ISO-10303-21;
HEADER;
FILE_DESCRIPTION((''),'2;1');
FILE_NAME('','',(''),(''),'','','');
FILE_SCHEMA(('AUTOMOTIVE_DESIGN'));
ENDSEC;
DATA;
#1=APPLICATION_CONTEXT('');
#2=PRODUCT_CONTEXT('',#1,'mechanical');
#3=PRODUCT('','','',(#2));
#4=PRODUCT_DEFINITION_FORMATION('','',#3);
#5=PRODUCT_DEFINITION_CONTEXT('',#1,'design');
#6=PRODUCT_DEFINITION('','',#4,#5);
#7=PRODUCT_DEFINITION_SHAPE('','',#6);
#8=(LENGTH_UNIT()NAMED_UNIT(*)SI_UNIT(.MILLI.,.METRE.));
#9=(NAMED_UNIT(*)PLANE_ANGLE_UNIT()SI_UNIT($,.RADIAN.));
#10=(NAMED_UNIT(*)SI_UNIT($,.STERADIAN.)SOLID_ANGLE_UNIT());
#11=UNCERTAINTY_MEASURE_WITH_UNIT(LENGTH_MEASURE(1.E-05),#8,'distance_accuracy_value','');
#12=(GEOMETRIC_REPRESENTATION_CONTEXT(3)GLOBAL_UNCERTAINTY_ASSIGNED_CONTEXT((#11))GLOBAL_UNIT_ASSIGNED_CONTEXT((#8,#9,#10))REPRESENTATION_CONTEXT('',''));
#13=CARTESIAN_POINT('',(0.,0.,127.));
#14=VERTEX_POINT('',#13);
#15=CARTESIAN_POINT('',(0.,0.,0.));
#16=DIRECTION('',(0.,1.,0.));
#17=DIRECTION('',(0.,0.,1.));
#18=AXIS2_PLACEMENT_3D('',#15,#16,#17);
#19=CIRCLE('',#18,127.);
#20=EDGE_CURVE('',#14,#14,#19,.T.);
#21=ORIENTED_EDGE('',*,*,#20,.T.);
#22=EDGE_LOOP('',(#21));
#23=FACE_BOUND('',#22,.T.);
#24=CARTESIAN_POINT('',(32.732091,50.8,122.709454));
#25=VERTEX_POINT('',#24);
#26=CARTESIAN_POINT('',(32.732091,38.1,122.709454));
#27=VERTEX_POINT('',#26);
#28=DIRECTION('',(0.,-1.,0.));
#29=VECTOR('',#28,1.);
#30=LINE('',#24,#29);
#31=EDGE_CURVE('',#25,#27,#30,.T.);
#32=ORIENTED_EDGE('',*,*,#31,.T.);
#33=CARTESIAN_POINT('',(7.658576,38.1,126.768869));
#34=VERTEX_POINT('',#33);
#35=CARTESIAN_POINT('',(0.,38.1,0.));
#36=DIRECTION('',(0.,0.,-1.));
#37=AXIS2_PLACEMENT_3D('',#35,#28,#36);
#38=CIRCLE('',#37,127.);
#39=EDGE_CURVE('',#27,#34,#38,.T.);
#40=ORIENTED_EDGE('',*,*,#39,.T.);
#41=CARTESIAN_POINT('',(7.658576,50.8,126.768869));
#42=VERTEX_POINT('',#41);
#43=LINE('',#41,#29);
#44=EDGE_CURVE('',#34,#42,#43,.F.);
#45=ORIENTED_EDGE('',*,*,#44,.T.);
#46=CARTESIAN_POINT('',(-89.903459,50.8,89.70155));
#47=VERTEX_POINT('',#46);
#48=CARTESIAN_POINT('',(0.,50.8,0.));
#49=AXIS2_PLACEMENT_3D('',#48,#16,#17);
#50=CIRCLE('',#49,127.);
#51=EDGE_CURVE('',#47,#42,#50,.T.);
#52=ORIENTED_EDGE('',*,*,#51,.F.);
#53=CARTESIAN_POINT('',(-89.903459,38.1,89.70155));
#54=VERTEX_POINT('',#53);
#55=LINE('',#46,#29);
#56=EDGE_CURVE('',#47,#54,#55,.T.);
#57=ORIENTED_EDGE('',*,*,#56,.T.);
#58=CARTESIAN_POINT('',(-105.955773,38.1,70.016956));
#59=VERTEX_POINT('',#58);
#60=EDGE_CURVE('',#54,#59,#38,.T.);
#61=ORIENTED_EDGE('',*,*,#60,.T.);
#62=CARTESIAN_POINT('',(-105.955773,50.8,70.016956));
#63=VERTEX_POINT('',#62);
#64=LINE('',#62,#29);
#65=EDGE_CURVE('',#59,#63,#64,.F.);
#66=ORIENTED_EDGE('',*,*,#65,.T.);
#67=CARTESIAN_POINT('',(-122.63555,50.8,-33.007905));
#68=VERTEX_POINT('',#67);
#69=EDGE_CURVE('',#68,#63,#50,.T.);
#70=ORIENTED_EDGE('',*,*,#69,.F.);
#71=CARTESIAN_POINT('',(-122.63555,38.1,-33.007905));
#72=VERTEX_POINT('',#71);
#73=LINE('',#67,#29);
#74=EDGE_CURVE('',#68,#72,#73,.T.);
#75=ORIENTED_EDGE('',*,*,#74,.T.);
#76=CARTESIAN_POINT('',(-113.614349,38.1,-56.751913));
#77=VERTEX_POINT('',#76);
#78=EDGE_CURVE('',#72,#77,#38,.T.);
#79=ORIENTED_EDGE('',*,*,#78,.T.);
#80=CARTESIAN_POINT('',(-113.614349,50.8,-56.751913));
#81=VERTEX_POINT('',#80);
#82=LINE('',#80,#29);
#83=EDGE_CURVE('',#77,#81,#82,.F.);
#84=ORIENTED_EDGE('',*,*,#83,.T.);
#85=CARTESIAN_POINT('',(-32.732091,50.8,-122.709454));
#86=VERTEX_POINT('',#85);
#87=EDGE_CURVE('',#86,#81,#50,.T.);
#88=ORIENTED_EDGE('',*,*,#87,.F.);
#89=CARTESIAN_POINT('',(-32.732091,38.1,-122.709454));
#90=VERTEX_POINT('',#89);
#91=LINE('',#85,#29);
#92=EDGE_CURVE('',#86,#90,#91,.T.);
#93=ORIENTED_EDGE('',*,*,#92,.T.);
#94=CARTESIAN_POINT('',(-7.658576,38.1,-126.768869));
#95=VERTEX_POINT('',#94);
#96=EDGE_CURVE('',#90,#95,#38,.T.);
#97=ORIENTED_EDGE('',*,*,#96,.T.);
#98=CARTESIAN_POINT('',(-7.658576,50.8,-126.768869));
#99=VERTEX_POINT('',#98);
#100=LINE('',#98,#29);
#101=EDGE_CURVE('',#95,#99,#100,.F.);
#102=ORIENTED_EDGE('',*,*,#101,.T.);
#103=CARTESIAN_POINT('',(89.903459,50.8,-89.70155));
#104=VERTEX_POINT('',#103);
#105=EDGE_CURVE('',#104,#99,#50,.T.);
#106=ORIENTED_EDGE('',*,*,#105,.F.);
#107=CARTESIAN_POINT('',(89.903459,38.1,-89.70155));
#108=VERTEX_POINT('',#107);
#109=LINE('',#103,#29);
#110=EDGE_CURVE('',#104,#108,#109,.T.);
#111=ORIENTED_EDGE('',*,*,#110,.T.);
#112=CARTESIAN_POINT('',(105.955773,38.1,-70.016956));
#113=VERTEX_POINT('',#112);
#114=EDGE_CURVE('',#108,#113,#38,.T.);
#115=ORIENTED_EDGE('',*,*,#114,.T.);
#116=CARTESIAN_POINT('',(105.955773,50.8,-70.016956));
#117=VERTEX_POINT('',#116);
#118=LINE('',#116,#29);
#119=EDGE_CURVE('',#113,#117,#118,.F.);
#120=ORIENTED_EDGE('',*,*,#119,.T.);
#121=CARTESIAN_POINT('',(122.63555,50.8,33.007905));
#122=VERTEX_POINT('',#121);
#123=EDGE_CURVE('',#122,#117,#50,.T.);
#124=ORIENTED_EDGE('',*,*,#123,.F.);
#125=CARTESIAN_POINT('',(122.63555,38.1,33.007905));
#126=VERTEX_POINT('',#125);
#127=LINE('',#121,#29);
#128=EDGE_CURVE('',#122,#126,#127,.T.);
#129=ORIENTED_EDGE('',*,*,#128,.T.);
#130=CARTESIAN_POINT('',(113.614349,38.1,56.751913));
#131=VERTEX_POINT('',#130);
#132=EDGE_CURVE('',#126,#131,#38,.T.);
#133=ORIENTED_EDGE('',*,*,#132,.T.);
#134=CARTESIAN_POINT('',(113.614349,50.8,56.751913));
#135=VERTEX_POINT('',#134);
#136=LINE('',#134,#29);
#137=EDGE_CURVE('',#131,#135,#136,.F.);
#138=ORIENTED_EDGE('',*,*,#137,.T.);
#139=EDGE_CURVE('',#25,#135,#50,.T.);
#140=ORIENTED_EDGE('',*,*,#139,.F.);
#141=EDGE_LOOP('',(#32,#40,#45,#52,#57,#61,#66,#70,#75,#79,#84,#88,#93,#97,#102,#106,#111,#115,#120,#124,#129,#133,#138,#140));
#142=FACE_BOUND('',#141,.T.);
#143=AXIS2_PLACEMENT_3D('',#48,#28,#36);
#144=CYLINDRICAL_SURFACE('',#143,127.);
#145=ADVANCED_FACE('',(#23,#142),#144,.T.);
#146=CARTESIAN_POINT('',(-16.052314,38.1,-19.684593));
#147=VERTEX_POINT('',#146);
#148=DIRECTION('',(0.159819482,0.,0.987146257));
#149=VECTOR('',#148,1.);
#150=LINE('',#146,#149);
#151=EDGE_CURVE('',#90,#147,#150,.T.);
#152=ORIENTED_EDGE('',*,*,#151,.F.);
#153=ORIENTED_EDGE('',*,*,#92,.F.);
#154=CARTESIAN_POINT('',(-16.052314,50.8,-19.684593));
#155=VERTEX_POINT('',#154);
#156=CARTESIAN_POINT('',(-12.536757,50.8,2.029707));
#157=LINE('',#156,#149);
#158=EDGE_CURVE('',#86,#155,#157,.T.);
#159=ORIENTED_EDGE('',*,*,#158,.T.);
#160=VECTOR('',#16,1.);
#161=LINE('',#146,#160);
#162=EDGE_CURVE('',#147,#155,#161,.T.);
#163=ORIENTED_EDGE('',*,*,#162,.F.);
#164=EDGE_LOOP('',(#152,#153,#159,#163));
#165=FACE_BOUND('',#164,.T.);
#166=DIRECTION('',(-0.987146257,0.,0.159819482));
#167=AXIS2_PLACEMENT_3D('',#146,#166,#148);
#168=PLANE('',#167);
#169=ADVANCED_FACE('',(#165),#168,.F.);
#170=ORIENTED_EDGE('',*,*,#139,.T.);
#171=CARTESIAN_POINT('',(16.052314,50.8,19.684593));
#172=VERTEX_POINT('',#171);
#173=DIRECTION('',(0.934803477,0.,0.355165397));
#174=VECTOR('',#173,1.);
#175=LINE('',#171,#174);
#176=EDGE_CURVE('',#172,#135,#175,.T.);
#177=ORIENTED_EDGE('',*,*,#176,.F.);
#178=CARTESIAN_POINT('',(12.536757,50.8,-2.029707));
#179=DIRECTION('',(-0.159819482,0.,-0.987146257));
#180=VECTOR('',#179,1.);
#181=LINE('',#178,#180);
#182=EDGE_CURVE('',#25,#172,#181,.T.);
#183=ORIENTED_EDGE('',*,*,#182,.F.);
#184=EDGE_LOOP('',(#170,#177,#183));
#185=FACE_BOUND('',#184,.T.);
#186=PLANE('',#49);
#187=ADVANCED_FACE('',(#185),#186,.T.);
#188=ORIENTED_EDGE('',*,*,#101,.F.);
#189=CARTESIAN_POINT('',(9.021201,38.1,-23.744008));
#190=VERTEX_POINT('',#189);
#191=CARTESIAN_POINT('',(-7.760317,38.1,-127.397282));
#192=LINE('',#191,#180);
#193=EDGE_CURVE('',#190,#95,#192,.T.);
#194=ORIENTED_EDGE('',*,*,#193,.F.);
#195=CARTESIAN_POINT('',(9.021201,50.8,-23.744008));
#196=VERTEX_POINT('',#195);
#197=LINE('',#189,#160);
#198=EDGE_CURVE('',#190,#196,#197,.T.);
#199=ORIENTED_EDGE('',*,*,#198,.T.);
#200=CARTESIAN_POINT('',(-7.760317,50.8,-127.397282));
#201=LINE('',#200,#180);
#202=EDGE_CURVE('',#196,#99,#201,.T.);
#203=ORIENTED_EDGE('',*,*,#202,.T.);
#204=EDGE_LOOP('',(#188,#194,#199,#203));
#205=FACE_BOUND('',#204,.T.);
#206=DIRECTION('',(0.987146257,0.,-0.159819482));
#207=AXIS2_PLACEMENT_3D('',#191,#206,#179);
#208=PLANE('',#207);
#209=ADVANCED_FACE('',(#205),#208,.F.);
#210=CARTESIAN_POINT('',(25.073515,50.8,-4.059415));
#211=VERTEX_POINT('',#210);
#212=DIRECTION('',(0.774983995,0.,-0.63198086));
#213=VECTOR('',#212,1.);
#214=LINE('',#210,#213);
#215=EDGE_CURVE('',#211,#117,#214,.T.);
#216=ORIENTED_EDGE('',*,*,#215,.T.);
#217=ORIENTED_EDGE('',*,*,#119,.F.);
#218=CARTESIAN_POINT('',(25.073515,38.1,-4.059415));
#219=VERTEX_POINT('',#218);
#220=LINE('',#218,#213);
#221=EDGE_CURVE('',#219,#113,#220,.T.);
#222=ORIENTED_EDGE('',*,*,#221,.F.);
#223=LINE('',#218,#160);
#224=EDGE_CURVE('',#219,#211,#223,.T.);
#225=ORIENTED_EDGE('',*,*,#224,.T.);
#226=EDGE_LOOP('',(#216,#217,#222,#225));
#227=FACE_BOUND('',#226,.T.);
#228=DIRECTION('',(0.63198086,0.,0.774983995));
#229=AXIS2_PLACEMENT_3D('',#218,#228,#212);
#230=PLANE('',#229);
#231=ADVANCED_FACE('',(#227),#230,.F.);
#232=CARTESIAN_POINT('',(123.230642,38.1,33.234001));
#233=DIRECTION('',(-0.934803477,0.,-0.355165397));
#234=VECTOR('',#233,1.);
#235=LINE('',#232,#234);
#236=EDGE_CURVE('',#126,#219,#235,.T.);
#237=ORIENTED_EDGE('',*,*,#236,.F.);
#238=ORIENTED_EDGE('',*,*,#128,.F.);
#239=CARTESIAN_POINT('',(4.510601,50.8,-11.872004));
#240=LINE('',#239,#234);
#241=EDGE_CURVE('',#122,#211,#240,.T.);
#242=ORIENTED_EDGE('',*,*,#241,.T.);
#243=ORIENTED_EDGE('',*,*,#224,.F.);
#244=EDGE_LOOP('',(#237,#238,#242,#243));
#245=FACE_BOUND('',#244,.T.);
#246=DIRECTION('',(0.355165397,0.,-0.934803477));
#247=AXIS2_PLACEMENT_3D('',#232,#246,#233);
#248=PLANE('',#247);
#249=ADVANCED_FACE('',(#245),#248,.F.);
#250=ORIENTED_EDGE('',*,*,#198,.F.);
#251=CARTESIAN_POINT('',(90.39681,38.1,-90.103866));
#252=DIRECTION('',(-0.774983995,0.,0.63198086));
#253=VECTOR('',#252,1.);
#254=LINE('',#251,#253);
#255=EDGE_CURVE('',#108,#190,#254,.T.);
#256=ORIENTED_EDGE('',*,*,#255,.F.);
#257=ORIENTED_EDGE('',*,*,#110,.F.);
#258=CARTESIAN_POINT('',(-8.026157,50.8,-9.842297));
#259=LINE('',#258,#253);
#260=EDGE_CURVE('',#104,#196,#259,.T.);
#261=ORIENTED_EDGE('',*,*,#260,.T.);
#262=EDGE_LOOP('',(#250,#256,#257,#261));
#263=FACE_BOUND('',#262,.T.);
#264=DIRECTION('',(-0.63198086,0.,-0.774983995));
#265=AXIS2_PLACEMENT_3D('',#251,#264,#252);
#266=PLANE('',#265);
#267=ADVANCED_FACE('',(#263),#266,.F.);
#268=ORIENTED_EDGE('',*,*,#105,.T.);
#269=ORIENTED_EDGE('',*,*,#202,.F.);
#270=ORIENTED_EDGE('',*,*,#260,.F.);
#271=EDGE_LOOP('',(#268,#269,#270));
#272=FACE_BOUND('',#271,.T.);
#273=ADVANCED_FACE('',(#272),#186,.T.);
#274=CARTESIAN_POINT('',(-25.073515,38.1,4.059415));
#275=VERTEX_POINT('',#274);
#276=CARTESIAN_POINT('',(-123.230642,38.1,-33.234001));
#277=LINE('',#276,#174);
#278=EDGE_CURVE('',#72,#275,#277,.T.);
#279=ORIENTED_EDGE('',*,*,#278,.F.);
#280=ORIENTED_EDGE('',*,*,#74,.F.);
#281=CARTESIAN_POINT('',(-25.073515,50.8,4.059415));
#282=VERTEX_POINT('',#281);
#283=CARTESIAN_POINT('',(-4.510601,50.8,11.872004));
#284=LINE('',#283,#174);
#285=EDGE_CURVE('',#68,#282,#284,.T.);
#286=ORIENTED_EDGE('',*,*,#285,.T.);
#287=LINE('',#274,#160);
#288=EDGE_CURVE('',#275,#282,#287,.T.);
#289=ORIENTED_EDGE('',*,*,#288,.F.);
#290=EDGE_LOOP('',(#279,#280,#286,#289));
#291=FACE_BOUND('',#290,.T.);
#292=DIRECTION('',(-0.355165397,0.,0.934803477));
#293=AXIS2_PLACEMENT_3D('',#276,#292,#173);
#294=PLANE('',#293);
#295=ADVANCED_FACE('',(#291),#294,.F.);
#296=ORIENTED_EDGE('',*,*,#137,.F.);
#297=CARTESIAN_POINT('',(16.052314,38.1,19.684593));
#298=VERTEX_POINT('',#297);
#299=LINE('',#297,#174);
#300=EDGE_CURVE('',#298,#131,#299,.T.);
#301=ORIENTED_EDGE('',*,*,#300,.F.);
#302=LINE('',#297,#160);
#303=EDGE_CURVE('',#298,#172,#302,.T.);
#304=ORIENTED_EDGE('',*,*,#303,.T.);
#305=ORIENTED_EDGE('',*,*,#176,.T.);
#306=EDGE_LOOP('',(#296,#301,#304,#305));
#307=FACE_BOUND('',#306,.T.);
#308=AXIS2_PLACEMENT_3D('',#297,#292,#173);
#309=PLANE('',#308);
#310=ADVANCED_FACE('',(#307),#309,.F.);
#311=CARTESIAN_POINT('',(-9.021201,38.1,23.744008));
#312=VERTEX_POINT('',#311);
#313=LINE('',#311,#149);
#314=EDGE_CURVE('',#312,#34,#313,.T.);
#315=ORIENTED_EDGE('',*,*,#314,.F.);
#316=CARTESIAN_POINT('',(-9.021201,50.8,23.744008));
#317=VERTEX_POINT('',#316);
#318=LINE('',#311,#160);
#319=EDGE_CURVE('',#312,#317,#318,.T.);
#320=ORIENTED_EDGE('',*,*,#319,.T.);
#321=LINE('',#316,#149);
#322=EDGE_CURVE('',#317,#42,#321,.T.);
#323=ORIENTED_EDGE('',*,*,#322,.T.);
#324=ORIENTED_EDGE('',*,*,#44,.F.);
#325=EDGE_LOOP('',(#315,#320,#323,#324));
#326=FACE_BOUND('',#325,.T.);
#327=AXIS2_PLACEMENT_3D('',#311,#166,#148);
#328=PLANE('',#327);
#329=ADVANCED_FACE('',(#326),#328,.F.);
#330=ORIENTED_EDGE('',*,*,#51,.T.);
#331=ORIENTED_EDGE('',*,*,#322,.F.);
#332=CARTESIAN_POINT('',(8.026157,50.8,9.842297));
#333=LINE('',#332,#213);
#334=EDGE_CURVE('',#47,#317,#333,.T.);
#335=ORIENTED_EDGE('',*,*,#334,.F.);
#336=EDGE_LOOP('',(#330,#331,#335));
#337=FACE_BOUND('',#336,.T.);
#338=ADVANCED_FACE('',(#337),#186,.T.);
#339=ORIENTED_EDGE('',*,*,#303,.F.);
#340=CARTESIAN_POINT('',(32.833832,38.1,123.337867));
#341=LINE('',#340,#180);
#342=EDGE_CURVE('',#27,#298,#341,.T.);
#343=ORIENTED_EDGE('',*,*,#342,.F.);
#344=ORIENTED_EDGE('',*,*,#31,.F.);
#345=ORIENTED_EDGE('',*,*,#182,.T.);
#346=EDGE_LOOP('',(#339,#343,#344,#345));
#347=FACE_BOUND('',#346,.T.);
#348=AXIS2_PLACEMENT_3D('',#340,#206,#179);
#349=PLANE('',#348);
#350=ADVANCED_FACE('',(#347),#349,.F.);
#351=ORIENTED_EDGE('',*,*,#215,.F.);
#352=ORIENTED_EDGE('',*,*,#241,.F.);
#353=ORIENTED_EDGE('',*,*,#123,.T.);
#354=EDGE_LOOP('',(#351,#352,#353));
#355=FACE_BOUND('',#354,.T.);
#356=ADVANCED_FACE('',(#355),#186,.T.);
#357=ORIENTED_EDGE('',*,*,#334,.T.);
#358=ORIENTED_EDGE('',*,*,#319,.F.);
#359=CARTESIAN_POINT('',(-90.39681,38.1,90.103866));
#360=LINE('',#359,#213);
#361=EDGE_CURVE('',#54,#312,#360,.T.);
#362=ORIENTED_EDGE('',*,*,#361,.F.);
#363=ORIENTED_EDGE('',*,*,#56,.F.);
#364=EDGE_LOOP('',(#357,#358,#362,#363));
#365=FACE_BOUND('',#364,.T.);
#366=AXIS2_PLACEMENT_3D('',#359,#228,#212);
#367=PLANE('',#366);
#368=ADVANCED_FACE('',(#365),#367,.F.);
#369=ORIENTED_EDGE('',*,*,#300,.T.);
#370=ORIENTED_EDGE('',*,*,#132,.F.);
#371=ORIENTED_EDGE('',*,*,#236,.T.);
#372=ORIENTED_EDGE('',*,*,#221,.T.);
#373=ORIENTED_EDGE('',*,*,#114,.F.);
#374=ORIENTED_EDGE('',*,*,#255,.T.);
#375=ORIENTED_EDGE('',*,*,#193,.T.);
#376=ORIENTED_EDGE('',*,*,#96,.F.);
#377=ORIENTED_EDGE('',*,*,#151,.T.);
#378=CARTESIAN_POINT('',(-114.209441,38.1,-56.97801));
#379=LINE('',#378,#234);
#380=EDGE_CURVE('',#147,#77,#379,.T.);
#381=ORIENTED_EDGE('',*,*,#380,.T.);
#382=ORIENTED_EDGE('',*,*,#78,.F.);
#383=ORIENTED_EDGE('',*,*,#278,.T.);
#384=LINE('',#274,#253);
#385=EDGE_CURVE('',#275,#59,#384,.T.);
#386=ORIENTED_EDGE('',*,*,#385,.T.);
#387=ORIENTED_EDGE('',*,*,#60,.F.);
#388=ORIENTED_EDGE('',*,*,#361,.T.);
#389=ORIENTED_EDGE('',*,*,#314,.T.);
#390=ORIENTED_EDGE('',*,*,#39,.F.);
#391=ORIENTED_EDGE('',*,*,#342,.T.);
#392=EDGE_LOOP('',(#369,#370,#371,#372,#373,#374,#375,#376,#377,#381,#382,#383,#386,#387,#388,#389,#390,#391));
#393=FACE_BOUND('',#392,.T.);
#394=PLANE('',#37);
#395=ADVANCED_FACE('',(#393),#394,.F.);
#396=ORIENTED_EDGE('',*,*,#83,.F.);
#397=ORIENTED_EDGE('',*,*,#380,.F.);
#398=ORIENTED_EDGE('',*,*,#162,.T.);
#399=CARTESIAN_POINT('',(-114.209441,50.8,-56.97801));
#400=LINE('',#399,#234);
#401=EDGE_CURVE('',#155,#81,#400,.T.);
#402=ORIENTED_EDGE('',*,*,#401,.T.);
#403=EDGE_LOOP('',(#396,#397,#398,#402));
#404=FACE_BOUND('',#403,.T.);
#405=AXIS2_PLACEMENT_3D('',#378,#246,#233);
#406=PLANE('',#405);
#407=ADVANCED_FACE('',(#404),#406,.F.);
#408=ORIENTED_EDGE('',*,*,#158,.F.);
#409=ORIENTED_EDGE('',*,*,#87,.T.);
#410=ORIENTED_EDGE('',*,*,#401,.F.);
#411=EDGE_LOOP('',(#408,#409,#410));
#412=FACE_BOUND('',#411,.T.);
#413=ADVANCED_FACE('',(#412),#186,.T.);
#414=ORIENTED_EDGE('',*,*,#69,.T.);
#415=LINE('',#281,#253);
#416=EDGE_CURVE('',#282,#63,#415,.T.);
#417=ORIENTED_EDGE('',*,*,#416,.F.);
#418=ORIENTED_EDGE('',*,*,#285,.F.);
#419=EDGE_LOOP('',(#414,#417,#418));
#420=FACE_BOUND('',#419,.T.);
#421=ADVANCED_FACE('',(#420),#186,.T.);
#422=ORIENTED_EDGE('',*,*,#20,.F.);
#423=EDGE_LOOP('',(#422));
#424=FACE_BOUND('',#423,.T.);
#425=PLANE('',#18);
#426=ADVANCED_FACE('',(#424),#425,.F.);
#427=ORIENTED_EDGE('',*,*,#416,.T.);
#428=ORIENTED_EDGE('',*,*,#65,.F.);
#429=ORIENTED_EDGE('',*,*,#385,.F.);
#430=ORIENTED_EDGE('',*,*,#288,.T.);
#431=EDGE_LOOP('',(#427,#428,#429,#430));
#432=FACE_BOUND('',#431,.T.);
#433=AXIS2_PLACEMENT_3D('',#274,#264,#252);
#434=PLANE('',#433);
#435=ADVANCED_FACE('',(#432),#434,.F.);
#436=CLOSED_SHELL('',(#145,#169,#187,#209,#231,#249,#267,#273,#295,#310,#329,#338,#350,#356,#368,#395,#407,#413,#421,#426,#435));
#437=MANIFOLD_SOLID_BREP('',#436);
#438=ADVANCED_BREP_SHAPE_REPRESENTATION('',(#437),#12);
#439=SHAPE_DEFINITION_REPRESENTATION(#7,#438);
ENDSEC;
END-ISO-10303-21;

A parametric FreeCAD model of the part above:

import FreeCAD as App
import Part
import Sketcher
from FreeCAD import Vector
Q = App.Units.Quantity

doc = App.newDocument("Part")
params = doc.addObject("Spreadsheet::Sheet", "Params")
for row, (alias, value) in enumerate([
    ("sketch1_diameter", "10 in"),
    ("pad1_length", "2 in"),
    ("sketch2_length", "1 in"),
    ("pocket1_length", "0.5 in"),
], start=1):
    params.set(f"A{row}", alias)
    params.set(f"B{row}", "=" + value)
    params.setAlias(f"B{row}", alias)

body = doc.addObject("PartDesign::Body", "Body")

sketch1 = doc.addObject("Sketcher::SketchObject", "Sketch")
body.addObject(sketch1)
sketch1.AttachmentSupport = (doc.XZ_Plane, [""])
sketch1.MapMode = "FlatFace"
sketch1.addGeometry(Part.Circle(Vector(0, 0, 0), Vector(0, 0, 1), 127), False)
sketch1.addConstraint([
    Sketcher.Constraint("Coincident", 0, 3, -1, 1),
    Sketcher.Constraint("Diameter", 0, Q("10 in")),
])
sketch1.setExpression("Constraints[1]", "Params.sketch1_diameter")
pad1 = doc.addObject("PartDesign::Pad", "Pad")
body.addObject(pad1)
pad1.Profile = sketch1
pad1.setExpression("Length", "Params.pad1_length")
pad1.Reversed = True

sketch2 = doc.addObject("Sketcher::SketchObject", "Sketch001")
body.addObject(sketch2)
sketch2.AttachmentSupport = (doc.XZ_Plane, [""])
sketch2.MapMode = "FlatFace"
sketch2.AttachmentOffset = App.Placement(Vector(0, 0, -2 * 25.4), App.Rotation())
sketch2.addGeometry([
    Part.LineSegment(Vector(-106, 70, 0), Vector(-90, 90, 0)),
    Part.LineSegment(Vector(-90, 90, 0), Vector(-9, 24, 0)),
    Part.LineSegment(Vector(-9, 24, 0), Vector(8, 127, 0)),
    Part.LineSegment(Vector(8, 127, 0), Vector(33, 123, 0)),
    Part.LineSegment(Vector(33, 123, 0), Vector(16, 20, 0)),
    Part.LineSegment(Vector(16, 20, 0), Vector(114, 57, 0)),
    Part.LineSegment(Vector(114, 57, 0), Vector(123, 33, 0)),
    Part.LineSegment(Vector(123, 33, 0), Vector(25, -4, 0)),
    Part.LineSegment(Vector(25, -4, 0), Vector(106, -70, 0)),
    Part.LineSegment(Vector(106, -70, 0), Vector(90, -90, 0)),
    Part.LineSegment(Vector(90, -90, 0), Vector(9, -24, 0)),
    Part.LineSegment(Vector(9, -24, 0), Vector(-8, -127, 0)),
    Part.LineSegment(Vector(-8, -127, 0), Vector(-33, -123, 0)),
    Part.LineSegment(Vector(-33, -123, 0), Vector(-16, -20, 0)),
    Part.LineSegment(Vector(-16, -20, 0), Vector(-114, -57, 0)),
    Part.LineSegment(Vector(-114, -57, 0), Vector(-123, -33, 0)),
    Part.LineSegment(Vector(-123, -33, 0), Vector(-25, 4, 0)),
    Part.LineSegment(Vector(-25, 4, 0), Vector(-106, 70, 0)),
], False)
sketch2.addConstraint([
    Sketcher.Constraint("Coincident", 0, 2, 1, 1),
    Sketcher.Constraint("Coincident", 1, 2, 2, 1),
    Sketcher.Constraint("Coincident", 2, 2, 3, 1),
    Sketcher.Constraint("Coincident", 3, 2, 4, 1),
    Sketcher.Constraint("Coincident", 4, 2, 5, 1),
    Sketcher.Constraint("Coincident", 5, 2, 6, 1),
    Sketcher.Constraint("Coincident", 6, 2, 7, 1),
    Sketcher.Constraint("Coincident", 7, 2, 8, 1),
    Sketcher.Constraint("Coincident", 8, 2, 9, 1),
    Sketcher.Constraint("Coincident", 9, 2, 10, 1),
    Sketcher.Constraint("Coincident", 10, 2, 11, 1),
    Sketcher.Constraint("Coincident", 11, 2, 12, 1),
    Sketcher.Constraint("Coincident", 12, 2, 13, 1),
    Sketcher.Constraint("Coincident", 13, 2, 14, 1),
    Sketcher.Constraint("Coincident", 14, 2, 15, 1),
    Sketcher.Constraint("Coincident", 15, 2, 16, 1),
    Sketcher.Constraint("Coincident", 16, 2, 17, 1),
    Sketcher.Constraint("Coincident", 17, 2, 0, 1),
    Sketcher.Constraint("Symmetric", 0, 2, 9, 2, -1, 1),
    Sketcher.Constraint("Symmetric", 1, 2, 10, 2, -1, 1),
    Sketcher.Constraint("Symmetric", 2, 2, 11, 2, -1, 1),
    Sketcher.Constraint("Symmetric", 3, 2, 12, 2, -1, 1),
    Sketcher.Constraint("Symmetric", 4, 2, 13, 2, -1, 1),
    Sketcher.Constraint("Symmetric", 5, 2, 14, 2, -1, 1),
    Sketcher.Constraint("Symmetric", 6, 2, 15, 2, -1, 1),
    Sketcher.Constraint("Symmetric", 7, 2, 16, 2, -1, 1),
    Sketcher.Constraint("Symmetric", 8, 2, 17, 2, -1, 1),
    Sketcher.Constraint("Perpendicular", 0, 1),
    Sketcher.Constraint("Perpendicular", 2, 3),
    Sketcher.Constraint("Perpendicular", 3, 4),
    Sketcher.Constraint("Perpendicular", 5, 6),
    Sketcher.Constraint("Perpendicular", 6, 7),
    Sketcher.Constraint("Parallel", 1, 8),
    Sketcher.Constraint("Equal", 1, 2),
    Sketcher.Constraint("Equal", 0, 3),
    Sketcher.Constraint("Equal", 2, 4),
    Sketcher.Constraint("Equal", 4, 5),
    Sketcher.Constraint("Equal", 3, 6),
    Sketcher.Constraint("Equal", 5, 7),
    Sketcher.Constraint("Equal", 7, 8),
    Sketcher.Constraint("Distance", 0, Q("1 in")),
    Sketcher.Constraint("DistanceX", -1, 1, 6, 2, Q("4.8516001 in")),
    Sketcher.Constraint("DistanceX", 0, 2, 3, 2, Q("4.8516001 in")),
    Sketcher.Constraint("DistanceX", 1, 2, 5, 2, Q("4.8516001 in")),
    Sketcher.Constraint("DistanceX", 1, 2, -1, 1, Q("9.021201 mm")),
])
sketch2.setExpression("Constraints[40]", "Params.sketch2_length")
pocket1 = doc.addObject("PartDesign::Pocket", "Pocket")
body.addObject(pocket1)
pocket1.Profile = sketch2
pocket1.setExpression("Length", "Params.pocket1_length")
pocket1.Reversed = True

doc.recompute()
